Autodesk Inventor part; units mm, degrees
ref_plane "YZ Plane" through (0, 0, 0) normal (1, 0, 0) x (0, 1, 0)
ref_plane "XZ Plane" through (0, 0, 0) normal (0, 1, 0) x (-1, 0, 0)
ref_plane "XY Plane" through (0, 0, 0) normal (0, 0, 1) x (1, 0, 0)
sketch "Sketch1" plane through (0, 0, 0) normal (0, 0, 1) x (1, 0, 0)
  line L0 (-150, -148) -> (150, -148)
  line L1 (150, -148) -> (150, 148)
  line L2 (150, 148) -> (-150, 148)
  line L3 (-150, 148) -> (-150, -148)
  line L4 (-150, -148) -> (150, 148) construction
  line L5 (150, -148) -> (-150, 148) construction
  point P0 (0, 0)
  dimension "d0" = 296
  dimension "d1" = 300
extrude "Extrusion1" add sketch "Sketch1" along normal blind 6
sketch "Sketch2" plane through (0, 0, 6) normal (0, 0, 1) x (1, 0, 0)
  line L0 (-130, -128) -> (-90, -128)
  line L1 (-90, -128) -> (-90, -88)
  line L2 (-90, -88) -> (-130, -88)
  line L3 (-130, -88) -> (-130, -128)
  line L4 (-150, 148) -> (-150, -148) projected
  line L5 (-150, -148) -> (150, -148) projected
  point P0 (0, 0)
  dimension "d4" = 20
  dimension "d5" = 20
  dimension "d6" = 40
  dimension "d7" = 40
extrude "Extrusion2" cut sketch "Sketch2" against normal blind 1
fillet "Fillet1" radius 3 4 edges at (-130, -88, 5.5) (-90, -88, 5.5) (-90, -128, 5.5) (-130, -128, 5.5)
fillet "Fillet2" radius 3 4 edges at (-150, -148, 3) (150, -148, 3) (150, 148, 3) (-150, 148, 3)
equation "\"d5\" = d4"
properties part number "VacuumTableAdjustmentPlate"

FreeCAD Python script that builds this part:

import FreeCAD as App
import Part
import Sketcher

V = App.Vector


def edges_at(feature, points):
    """Names of the edges that pass closest to the given points."""
    edges = feature.Shape.Edges
    near = lambda p: min(range(len(edges)), key=lambda i: edges[i].distToShape(Part.Vertex(*p))[0])
    return sorted({f"Edge{near(p) + 1}" for p in points})


def add_polygon(sketch, points):
    """Adds a closed chain of lines whose ends are joined by coincident constraints."""
    first, n = sketch.GeometryCount, len(points)
    for a, b in zip(points, points[1:] + points[:1]):
        sketch.addGeometry(Part.LineSegment(App.Vector(*a, 0), App.Vector(*b, 0)), False)
    for i in range(n):
        sketch.addConstraint(Sketcher.Constraint("Coincident", first + i, 2, first + (i + 1) % n, 1))

doc = App.newDocument("Part")
params = doc.addObject("Spreadsheet::Sheet", "Params")
for row, (alias, value) in enumerate([
    ("sketch1_width", "300 mm"),
    ("sketch1_height", "296 mm"),
    ("pad1_length", "6 mm"),
    ("sketch2_width", "40 mm"),
    ("pocket1_length", "1 mm"),
    ("fillet_radius", "3 mm"),
    ("fillet2_radius", "3 mm"),
], start=1):
    params.set(f"A{row}", alias)
    params.set(f"B{row}", "=" + value)
    params.setAlias(f"B{row}", alias)

body = doc.addObject("PartDesign::Body", "Body")

sketch1 = body.newObject("Sketcher::SketchObject", "Sketch")
sketch1.AttachmentSupport = (doc.getObject("XY_Plane"), [""])
sketch1.MapMode = "FlatFace"
add_polygon(sketch1, [(-150, 148), (-150, -148), (150, -148), (150, 148)])
sketch1.addConstraint([
    Sketcher.Constraint("Vertical", 0),
    Sketcher.Constraint("Horizontal", 1),
    Sketcher.Constraint("Vertical", 2),
    Sketcher.Constraint("Horizontal", 3),
    Sketcher.Constraint("Symmetric", 0, 2, 2, 2, -1, 1),
    Sketcher.Constraint("DistanceX", 1, 1, 1, 2, 300.0),
    Sketcher.Constraint("DistanceY", 0, 2, 0, 1, 296.0),
])
sketch1.setExpression("Constraints[9]", "Params.sketch1_width")
sketch1.setExpression("Constraints[10]", "Params.sketch1_height")
pad1 = body.newObject("PartDesign::Pad", "Pad")
pad1.Profile = sketch1
pad1.setExpression("Length", "Params.pad1_length")

sketch2 = body.newObject("Sketcher::SketchObject", "Sketch001")
sketch2.AttachmentSupport = (doc.getObject("XY_Plane"), [""])
sketch2.MapMode = "FlatFace"
sketch2.AttachmentOffset = App.Placement(V(0, 0, 6), App.Rotation())
add_polygon(sketch2, [(-130, -88), (-130, -128), (-90, -128), (-90, -88)])
sketch2.addConstraint([
    Sketcher.Constraint("Vertical", 0),
    Sketcher.Constraint("Horizontal", 1),
    Sketcher.Constraint("Vertical", 2),
    Sketcher.Constraint("Horizontal", 3),
    Sketcher.Constraint("Equal", 3, 0),
    Sketcher.Constraint("DistanceX", 1, 1, 1, 2, 40.0),
    Sketcher.Constraint("DistanceX", 0, 2, -1, 1, 130.0),
    Sketcher.Constraint("DistanceY", 0, 2, -1, 1, 128.0),
])
sketch2.setExpression("Constraints[9]", "Params.sketch2_width")
pocket1 = body.newObject("PartDesign::Pocket", "Pocket")
pocket1.Profile = sketch2
pocket1.setExpression("Length", "Params.pocket1_length")
doc.recompute()

fillet = body.newObject("PartDesign::Fillet", "Fillet")
fillet.Base = (pocket1, edges_at(pocket1, [
    (-130, -88, 5.5),
    (-90, -88, 5.5),
    (-90, -128, 5.5),
    (-130, -128, 5.5),
]))
fillet.setExpression("Radius", "Params.fillet_radius")
doc.recompute()

fillet2 = body.newObject("PartDesign::Fillet", "Fillet001")
fillet2.Base = (fillet, edges_at(fillet, [
    (-150, -148, 3),
    (150, -148, 3),
    (150, 148, 3),
    (-150, 148, 3),
]))
fillet2.setExpression("Radius", "Params.fillet2_radius")

doc.recompute()
